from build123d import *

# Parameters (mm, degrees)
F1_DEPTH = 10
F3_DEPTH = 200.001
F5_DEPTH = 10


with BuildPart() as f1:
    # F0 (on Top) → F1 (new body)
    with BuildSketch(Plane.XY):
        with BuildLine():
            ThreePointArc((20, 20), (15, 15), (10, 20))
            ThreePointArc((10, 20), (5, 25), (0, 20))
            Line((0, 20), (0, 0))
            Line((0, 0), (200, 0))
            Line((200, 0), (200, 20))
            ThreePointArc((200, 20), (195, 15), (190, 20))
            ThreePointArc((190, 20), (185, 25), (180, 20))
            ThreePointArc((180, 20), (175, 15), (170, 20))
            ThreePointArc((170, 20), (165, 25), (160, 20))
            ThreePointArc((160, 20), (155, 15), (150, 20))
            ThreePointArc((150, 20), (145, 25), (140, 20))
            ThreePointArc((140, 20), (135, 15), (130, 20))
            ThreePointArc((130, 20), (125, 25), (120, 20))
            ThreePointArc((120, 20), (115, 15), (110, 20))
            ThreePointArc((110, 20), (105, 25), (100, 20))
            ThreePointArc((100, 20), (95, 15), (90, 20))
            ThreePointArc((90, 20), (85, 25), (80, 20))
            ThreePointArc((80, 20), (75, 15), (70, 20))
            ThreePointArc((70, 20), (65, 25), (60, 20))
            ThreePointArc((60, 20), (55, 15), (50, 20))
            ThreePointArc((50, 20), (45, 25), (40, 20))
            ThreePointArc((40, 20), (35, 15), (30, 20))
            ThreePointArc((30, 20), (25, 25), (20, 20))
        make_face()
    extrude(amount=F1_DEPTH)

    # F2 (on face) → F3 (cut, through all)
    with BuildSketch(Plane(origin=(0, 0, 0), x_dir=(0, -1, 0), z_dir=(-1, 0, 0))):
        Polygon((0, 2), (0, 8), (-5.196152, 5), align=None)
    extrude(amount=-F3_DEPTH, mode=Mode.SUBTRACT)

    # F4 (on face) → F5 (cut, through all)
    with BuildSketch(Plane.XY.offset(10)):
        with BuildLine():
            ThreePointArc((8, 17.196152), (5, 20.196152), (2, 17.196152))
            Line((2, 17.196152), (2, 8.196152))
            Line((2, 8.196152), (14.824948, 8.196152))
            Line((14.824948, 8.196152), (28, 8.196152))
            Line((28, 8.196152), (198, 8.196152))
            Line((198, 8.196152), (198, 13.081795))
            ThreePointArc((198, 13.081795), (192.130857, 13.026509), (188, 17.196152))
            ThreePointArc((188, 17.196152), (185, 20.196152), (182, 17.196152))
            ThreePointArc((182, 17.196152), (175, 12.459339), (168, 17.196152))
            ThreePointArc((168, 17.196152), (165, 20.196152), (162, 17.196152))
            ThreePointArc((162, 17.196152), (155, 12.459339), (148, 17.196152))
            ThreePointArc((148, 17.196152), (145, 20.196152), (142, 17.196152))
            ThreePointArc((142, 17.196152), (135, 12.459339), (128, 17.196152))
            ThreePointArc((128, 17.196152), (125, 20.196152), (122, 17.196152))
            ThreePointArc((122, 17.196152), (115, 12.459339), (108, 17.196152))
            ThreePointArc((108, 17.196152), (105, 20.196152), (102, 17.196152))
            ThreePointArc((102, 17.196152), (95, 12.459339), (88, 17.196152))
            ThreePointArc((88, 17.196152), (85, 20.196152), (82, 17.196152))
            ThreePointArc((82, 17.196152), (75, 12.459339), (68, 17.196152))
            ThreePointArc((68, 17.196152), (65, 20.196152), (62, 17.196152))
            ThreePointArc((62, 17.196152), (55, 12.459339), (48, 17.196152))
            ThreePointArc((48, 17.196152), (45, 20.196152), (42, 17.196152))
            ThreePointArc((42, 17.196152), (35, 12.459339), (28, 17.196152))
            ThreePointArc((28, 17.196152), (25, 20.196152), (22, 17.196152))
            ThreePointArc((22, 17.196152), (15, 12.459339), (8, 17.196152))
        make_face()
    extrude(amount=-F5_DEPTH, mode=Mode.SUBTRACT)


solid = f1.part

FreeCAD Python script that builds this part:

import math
import FreeCAD as App
import Part
import Sketcher
from FreeCAD import Vector
Q = App.Units.Quantity


def add_polygon(sketch, points):
    """Adds a closed chain of lines whose ends are joined by coincident constraints."""
    first, n = sketch.GeometryCount, len(points)
    for a, b in zip(points, points[1:] + points[:1]):
        sketch.addGeometry(Part.LineSegment(App.Vector(*a, 0), App.Vector(*b, 0)), False)
    for i in range(n):
        sketch.addConstraint(Sketcher.Constraint("Coincident", first + i, 2, first + (i + 1) % n, 1))

doc = App.newDocument("Part")
body = doc.addObject("PartDesign::Body", "Body")

sketch1 = body.newObject("Sketcher::SketchObject", "Sketch")
sketch1.AttachmentSupport = (doc.getObject("XY_Plane"), [""])
sketch1.MapMode = "FlatFace"
sketch1.addGeometry([
    Part.ArcOfCircle(Part.Circle(Vector(15, 20, 0), Vector(0, 0, 1), 5), math.radians(180), math.radians(360)),
    Part.ArcOfCircle(Part.Circle(Vector(5, 20, 0), Vector(0, 0, 1), 5), math.radians(0), math.radians(180)),
    Part.LineSegment(Vector(0, 20, 0), Vector(0, 0, 0)),
    Part.LineSegment(Vector(0, 0, 0), Vector(200, 0, 0)),
    Part.LineSegment(Vector(200, 0, 0), Vector(200, 20, 0)),
    Part.ArcOfCircle(Part.Circle(Vector(195, 20, 0), Vector(0, 0, 1), 5), math.radians(180), math.radians(360)),
    Part.ArcOfCircle(Part.Circle(Vector(185, 20, 0), Vector(0, 0, 1), 5), math.radians(0), math.radians(180)),
    Part.ArcOfCircle(Part.Circle(Vector(175, 20, 0), Vector(0, 0, 1), 5), math.radians(180), math.radians(360)),
    Part.ArcOfCircle(Part.Circle(Vector(165, 20, 0), Vector(0, 0, 1), 5), math.radians(0), math.radians(180)),
    Part.ArcOfCircle(Part.Circle(Vector(155, 20, 0), Vector(0, 0, 1), 5), math.radians(180), math.radians(360)),
    Part.ArcOfCircle(Part.Circle(Vector(145, 20, 0), Vector(0, 0, 1), 5), math.radians(0), math.radians(180)),
    Part.ArcOfCircle(Part.Circle(Vector(135, 20, 0), Vector(0, 0, 1), 5), math.radians(180), math.radians(360)),
    Part.ArcOfCircle(Part.Circle(Vector(125, 20, 0), Vector(0, 0, 1), 5), math.radians(0), math.radians(180)),
    Part.ArcOfCircle(Part.Circle(Vector(115, 20, 0), Vector(0, 0, 1), 5), math.radians(180), math.radians(360)),
    Part.ArcOfCircle(Part.Circle(Vector(105, 20, 0), Vector(0, 0, 1), 5), math.radians(0), math.radians(180)),
    Part.ArcOfCircle(Part.Circle(Vector(95, 20, 0), Vector(0, 0, 1), 5), math.radians(180), math.radians(360)),
    Part.ArcOfCircle(Part.Circle(Vector(85, 20, 0), Vector(0, 0, 1), 5), math.radians(0), math.radians(180)),
    Part.ArcOfCircle(Part.Circle(Vector(75, 20, 0), Vector(0, 0, 1), 5), math.radians(180), math.radians(360)),
    Part.ArcOfCircle(Part.Circle(Vector(65, 20, 0), Vector(0, 0, 1), 5), math.radians(0), math.radians(180)),
    Part.ArcOfCircle(Part.Circle(Vector(55, 20, 0), Vector(0, 0, 1), 5), math.radians(180), math.radians(360)),
    Part.ArcOfCircle(Part.Circle(Vector(45, 20, 0), Vector(0, 0, 1), 5), math.radians(0), math.radians(180)),
    Part.ArcOfCircle(Part.Circle(Vector(35, 20, 0), Vector(0, 0, 1), 5), math.radians(180), math.radians(360)),
    Part.ArcOfCircle(Part.Circle(Vector(25, 20, 0), Vector(0, 0, 1), 5), math.radians(0), math.radians(180)),
], False)
sketch1.addConstraint([
    Sketcher.Constraint("Tangent", 0, 1, 1, 1),
    Sketcher.Constraint("Tangent", 1, 2, 2, 1),
    Sketcher.Constraint("Coincident", 2, 2, 3, 1),
    Sketcher.Constraint("Coincident", 3, 2, 4, 1),
    Sketcher.Constraint("Tangent", 4, 2, 5, 2),
    Sketcher.Constraint("Tangent", 5, 1, 6, 1),
    Sketcher.Constraint("Tangent", 6, 2, 7, 2),
    Sketcher.Constraint("Tangent", 7, 1, 8, 1),
    Sketcher.Constraint("Tangent", 8, 2, 9, 2),
    Sketcher.Constraint("Tangent", 9, 1, 10, 1),
    Sketcher.Constraint("Tangent", 10, 2, 11, 2),
    Sketcher.Constraint("Tangent", 11, 1, 12, 1),
    Sketcher.Constraint("Tangent", 12, 2, 13, 2),
    Sketcher.Constraint("Tangent", 13, 1, 14, 1),
    Sketcher.Constraint("Tangent", 14, 2, 15, 2),
    Sketcher.Constraint("Tangent", 15, 1, 16, 1),
    Sketcher.Constraint("Tangent", 16, 2, 17, 2),
    Sketcher.Constraint("Tangent", 17, 1, 18, 1),
    Sketcher.Constraint("Tangent", 18, 2, 19, 2),
    Sketcher.Constraint("Tangent", 19, 1, 20, 1),
    Sketcher.Constraint("Tangent", 20, 2, 21, 2),
    Sketcher.Constraint("Tangent", 21, 1, 22, 1),
    Sketcher.Constraint("Tangent", 22, 2, 0, 2),
    Sketcher.Constraint("Vertical", 2),
    Sketcher.Constraint("Horizontal", 3),
    Sketcher.Constraint("Vertical", 4),
    Sketcher.Constraint("Coincident", 2, 2, -1, 1),
    Sketcher.Constraint("Equal", 0, 1),
    Sketcher.Constraint("Equal", 1, 5),
    Sketcher.Constraint("Equal", 5, 6),
    Sketcher.Constraint("Equal", 6, 7),
    Sketcher.Constraint("Equal", 7, 8),
    Sketcher.Constraint("Equal", 8, 9),
    Sketcher.Constraint("Equal", 9, 10),
    Sketcher.Constraint("Equal", 10, 11),
    Sketcher.Constraint("Equal", 11, 12),
    Sketcher.Constraint("Equal", 12, 13),
    Sketcher.Constraint("Equal", 13, 14),
    Sketcher.Constraint("Equal", 14, 15),
    Sketcher.Constraint("Equal", 15, 16),
    Sketcher.Constraint("Equal", 16, 17),
    Sketcher.Constraint("Equal", 17, 18),
    Sketcher.Constraint("Equal", 18, 19),
    Sketcher.Constraint("Equal", 19, 20),
    Sketcher.Constraint("Equal", 20, 21),
    Sketcher.Constraint("Equal", 21, 22),
    Sketcher.Constraint("Horizontal", 0, 3, 1, 3),
    Sketcher.Constraint("Horizontal", 1, 3, 5, 3),
    Sketcher.Constraint("Horizontal", 5, 3, 6, 3),
    Sketcher.Constraint("Horizontal", 6, 3, 7, 3),
    Sketcher.Constraint("Horizontal", 7, 3, 8, 3),
    Sketcher.Constraint("Horizontal", 8, 3, 9, 3),
    Sketcher.Constraint("Horizontal", 9, 3, 10, 3),
    Sketcher.Constraint("Horizontal", 10, 3, 11, 3),
    Sketcher.Constraint("Horizontal", 11, 3, 12, 3),
    Sketcher.Constraint("Horizontal", 12, 3, 13, 3),
    Sketcher.Constraint("Horizontal", 13, 3, 14, 3),
    Sketcher.Constraint("Horizontal", 14, 3, 15, 3),
    Sketcher.Constraint("Horizontal", 15, 3, 16, 3),
    Sketcher.Constraint("Horizontal", 16, 3, 17, 3),
    Sketcher.Constraint("Horizontal", 17, 3, 18, 3),
    Sketcher.Constraint("Horizontal", 18, 3, 19, 3),
    Sketcher.Constraint("Horizontal", 19, 3, 20, 3),
    Sketcher.Constraint("Horizontal", 20, 3, 21, 3),
    Sketcher.Constraint("Horizontal", 21, 3, 22, 3),
    Sketcher.Constraint("Radius", 0, 5.0),
    Sketcher.Constraint("DistanceY", 2, 2, 2, 1, 20.0),
])
pad1 = body.newObject("PartDesign::Pad", "Pad")
pad1.Profile = sketch1
pad1.Length = 10

sketch2 = body.newObject("Sketcher::SketchObject", "Sketch001")
sketch2.AttachmentSupport = (doc.getObject("YZ_Plane"), [""])
sketch2.MapMode = "FlatFace"
add_polygon(sketch2, [(0, 2), (0, 8), (5, 5)])
sketch2.addConstraint([
    Sketcher.Constraint("Vertical", 0),
    Sketcher.Constraint("PointOnObject", 0, 2, -2),
    Sketcher.Constraint("Equal", 1, 2),
    Sketcher.Constraint("DistanceY", 0, 1, 0, 2, 6.0),
    Sketcher.Constraint("Angle", 1, Q("-30.000002 deg")),
    Sketcher.Constraint("DistanceY", -1, 1, 0, 2, 8.0),
])
pocket1 = body.newObject("PartDesign::Pocket", "Pocket")
pocket1.Profile = sketch2
pocket1.Type = "ThroughAll"
pocket1.Reversed = True

sketch3 = body.newObject("Sketcher::SketchObject", "Sketch002")
sketch3.AttachmentSupport = (doc.getObject("XY_Plane"), [""])
sketch3.MapMode = "FlatFace"
sketch3.AttachmentOffset = App.Placement(Vector(0, 0, 10), App.Rotation())
sketch3.addGeometry([
    Part.ArcOfCircle(Part.Circle(Vector(5, 17.2, 0), Vector(0, 0, 1), 3), math.radians(0), math.radians(180)),
    Part.LineSegment(Vector(2, 17.2, 0), Vector(2, 8.2, 0)),
    Part.LineSegment(Vector(2, 8.2, 0), Vector(198, 8.2, 0)),
    Part.LineSegment(Vector(198, 8.2, 0), Vector(198, 13.1, 0)),
    Part.ArcOfCircle(Part.Circle(Vector(195, 20, 0), Vector(0, 0, 1), 7.5), math.radians(-158), math.radians(-67)),
    Part.ArcOfCircle(Part.Circle(Vector(185, 17.2, 0), Vector(0, 0, 1), 3), math.radians(0), math.radians(180)),
    Part.ArcOfCircle(Part.Circle(Vector(175, 20, 0), Vector(0, 0, 1), 7.5), math.radians(-158), math.radians(-22)),
    Part.ArcOfCircle(Part.Circle(Vector(165, 17.2, 0), Vector(0, 0, 1), 3), math.radians(0), math.radians(180)),
    Part.ArcOfCircle(Part.Circle(Vector(155, 20, 0), Vector(0, 0, 1), 7.5), math.radians(-158), math.radians(-22)),
    Part.ArcOfCircle(Part.Circle(Vector(145, 17.2, 0), Vector(0, 0, 1), 3), math.radians(0), math.radians(180)),
    Part.ArcOfCircle(Part.Circle(Vector(135, 20, 0), Vector(0, 0, 1), 7.5), math.radians(-158), math.radians(-22)),
    Part.ArcOfCircle(Part.Circle(Vector(125, 17.2, 0), Vector(0, 0, 1), 3), math.radians(0), math.radians(180)),
    Part.ArcOfCircle(Part.Circle(Vector(115, 20, 0), Vector(0, 0, 1), 7.5), math.radians(-158), math.radians(-22)),
    Part.ArcOfCircle(Part.Circle(Vector(105, 17.2, 0), Vector(0, 0, 1), 3), math.radians(0), math.radians(180)),
    Part.ArcOfCircle(Part.Circle(Vector(95, 20, 0), Vector(0, 0, 1), 7.5), math.radians(-158), math.radians(-22)),
    Part.ArcOfCircle(Part.Circle(Vector(85, 17.2, 0), Vector(0, 0, 1), 3), math.radians(0), math.radians(180)),
    Part.ArcOfCircle(Part.Circle(Vector(75, 20, 0), Vector(0, 0, 1), 7.5), math.radians(-158), math.radians(-22)),
    Part.ArcOfCircle(Part.Circle(Vector(65, 17.2, 0), Vector(0, 0, 1), 3), math.radians(0), math.radians(180)),
    Part.ArcOfCircle(Part.Circle(Vector(55, 20, 0), Vector(0, 0, 1), 7.5), math.radians(-158), math.radians(-22)),
    Part.ArcOfCircle(Part.Circle(Vector(45, 17.2, 0), Vector(0, 0, 1), 3), math.radians(0), math.radians(180)),
    Part.ArcOfCircle(Part.Circle(Vector(35, 20, 0), Vector(0, 0, 1), 7.5), math.radians(-158), math.radians(-22)),
    Part.ArcOfCircle(Part.Circle(Vector(25, 17.2, 0), Vector(0, 0, 1), 3), math.radians(0), math.radians(180)),
    Part.ArcOfCircle(Part.Circle(Vector(15, 20, 0), Vector(0, 0, 1), 7.5), math.radians(-158), math.radians(-22)),
], False)
sketch3.addConstraint([
    Sketcher.Constraint("Tangent", 0, 2, 1, 1),
    Sketcher.Constraint("Coincident", 1, 2, 2, 1),
    Sketcher.Constraint("Coincident", 2, 2, 3, 1),
    Sketcher.Constraint("Coincident", 3, 2, 4, 2),
    Sketcher.Constraint("Coincident", 4, 1, 5, 1),
    Sketcher.Constraint("Coincident", 5, 2, 6, 2),
    Sketcher.Constraint("Coincident", 6, 1, 7, 1),
    Sketcher.Constraint("Coincident", 7, 2, 8, 2),
    Sketcher.Constraint("Coincident", 8, 1, 9, 1),
    Sketcher.Constraint("Coincident", 9, 2, 10, 2),
    Sketcher.Constraint("Coincident", 10, 1, 11, 1),
    Sketcher.Constraint("Coincident", 11, 2, 12, 2),
    Sketcher.Constraint("Coincident", 12, 1, 13, 1),
    Sketcher.Constraint("Coincident", 13, 2, 14, 2),
    Sketcher.Constraint("Coincident", 14, 1, 15, 1),
    Sketcher.Constraint("Coincident", 15, 2, 16, 2),
    Sketcher.Constraint("Coincident", 16, 1, 17, 1),
    Sketcher.Constraint("Coincident", 17, 2, 18, 2),
    Sketcher.Constraint("Coincident", 18, 1, 19, 1),
    Sketcher.Constraint("Coincident", 19, 2, 20, 2),
    Sketcher.Constraint("Coincident", 20, 1, 21, 1),
    Sketcher.Constraint("Coincident", 21, 2, 22, 2),
    Sketcher.Constraint("Coincident", 22, 1, 0, 1),
    Sketcher.Constraint("Vertical", 1),
    Sketcher.Constraint("Horizontal", 2),
    Sketcher.Constraint("Vertical", 3),
    Sketcher.Constraint("Equal", 0, 5),
    Sketcher.Constraint("Equal", 4, 6),
    Sketcher.Constraint("Equal", 5, 7),
    Sketcher.Constraint("Equal", 6, 8),
    Sketcher.Constraint("Equal", 7, 9),
    Sketcher.Constraint("Equal", 8, 10),
    Sketcher.Constraint("Equal", 9, 11),
    Sketcher.Constraint("Equal", 10, 12),
    Sketcher.Constraint("Equal", 11, 13),
    Sketcher.Constraint("Equal", 12, 14),
    Sketcher.Constraint("Equal", 13, 15),
    Sketcher.Constraint("Equal", 14, 16),
    Sketcher.Constraint("Equal", 15, 17),
    Sketcher.Constraint("Equal", 16, 18),
    Sketcher.Constraint("Equal", 17, 19),
    Sketcher.Constraint("Equal", 18, 20),
    Sketcher.Constraint("Equal", 19, 21),
    Sketcher.Constraint("Equal", 20, 22),
    Sketcher.Constraint("Horizontal", 0, 3, 5, 3),
    Sketcher.Constraint("Horizontal", 4, 3, 6, 3),
    Sketcher.Constraint("Horizontal", 5, 3, 7, 3),
    Sketcher.Constraint("Horizontal", 6, 3, 8, 3),
    Sketcher.Constraint("Horizontal", 7, 3, 9, 3),
    Sketcher.Constraint("Horizontal", 8, 3, 10, 3),
    Sketcher.Constraint("Horizontal", 9, 3, 11, 3),
    Sketcher.Constraint("Horizontal", 10, 3, 12, 3),
    Sketcher.Constraint("Horizontal", 11, 3, 13, 3),
    Sketcher.Constraint("Horizontal", 12, 3, 14, 3),
    Sketcher.Constraint("Horizontal", 13, 3, 15, 3),
    Sketcher.Constraint("Horizontal", 14, 3, 16, 3),
    Sketcher.Constraint("Horizontal", 15, 3, 17, 3),
    Sketcher.Constraint("Horizontal", 16, 3, 18, 3),
    Sketcher.Constraint("Horizontal", 17, 3, 19, 3),
    Sketcher.Constraint("Horizontal", 18, 3, 20, 3),
    Sketcher.Constraint("Horizontal", 19, 3, 21, 3),
    Sketcher.Constraint("Horizontal", 20, 3, 22, 3),
    Sketcher.Constraint("Horizontal", 0, 2, 4, 1),
    Sketcher.Constraint("Horizontal", 4, 1, 5, 2),
    Sketcher.Constraint("Horizontal", 5, 2, 6, 1),
    Sketcher.Constraint("Horizontal", 6, 1, 7, 2),
    Sketcher.Constraint("Horizontal", 7, 2, 8, 1),
    Sketcher.Constraint("Horizontal", 8, 1, 9, 2),
    Sketcher.Constraint("Horizontal", 9, 2, 10, 1),
    Sketcher.Constraint("Horizontal", 10, 1, 11, 2),
    Sketcher.Constraint("Horizontal", 11, 2, 12, 1),
    Sketcher.Constraint("Horizontal", 12, 1, 13, 2),
    Sketcher.Constraint("Horizontal", 13, 2, 14, 1),
    Sketcher.Constraint("Horizontal", 14, 1, 15, 2),
    Sketcher.Constraint("Horizontal", 15, 2, 16, 1),
    Sketcher.Constraint("Horizontal", 16, 1, 17, 2),
    Sketcher.Constraint("Horizontal", 17, 2, 18, 1),
    Sketcher.Constraint("Horizontal", 18, 1, 19, 2),
    Sketcher.Constraint("Horizontal", 19, 2, 20, 1),
    Sketcher.Constraint("Horizontal", 20, 1, 21, 2),
    Sketcher.Constraint("Horizontal", 21, 2, 22, 1),
    Sketcher.Constraint("Radius", 0, 3.0),
    Sketcher.Constraint("DistanceX", 2, 1, 2, 2, 196.0),
    Sketcher.Constraint("DistanceY", 1, 2, 1, 1, 9.0),
    Sketcher.Constraint("DistanceX", -1, 1, 0, 3, 5.0),
    Sketcher.Constraint("DistanceX", -1, 1, 4, 3, 195.0),
    Sketcher.Constraint("DistanceY", -1, 1, 4, 3, 20.000001),
    Sketcher.Constraint("Radius", 4, 7.540661),
])
pocket2 = body.newObject("PartDesign::Pocket", "Pocket001")
pocket2.Profile = sketch3
pocket2.Type = "ThroughAll"

doc.recompute()
